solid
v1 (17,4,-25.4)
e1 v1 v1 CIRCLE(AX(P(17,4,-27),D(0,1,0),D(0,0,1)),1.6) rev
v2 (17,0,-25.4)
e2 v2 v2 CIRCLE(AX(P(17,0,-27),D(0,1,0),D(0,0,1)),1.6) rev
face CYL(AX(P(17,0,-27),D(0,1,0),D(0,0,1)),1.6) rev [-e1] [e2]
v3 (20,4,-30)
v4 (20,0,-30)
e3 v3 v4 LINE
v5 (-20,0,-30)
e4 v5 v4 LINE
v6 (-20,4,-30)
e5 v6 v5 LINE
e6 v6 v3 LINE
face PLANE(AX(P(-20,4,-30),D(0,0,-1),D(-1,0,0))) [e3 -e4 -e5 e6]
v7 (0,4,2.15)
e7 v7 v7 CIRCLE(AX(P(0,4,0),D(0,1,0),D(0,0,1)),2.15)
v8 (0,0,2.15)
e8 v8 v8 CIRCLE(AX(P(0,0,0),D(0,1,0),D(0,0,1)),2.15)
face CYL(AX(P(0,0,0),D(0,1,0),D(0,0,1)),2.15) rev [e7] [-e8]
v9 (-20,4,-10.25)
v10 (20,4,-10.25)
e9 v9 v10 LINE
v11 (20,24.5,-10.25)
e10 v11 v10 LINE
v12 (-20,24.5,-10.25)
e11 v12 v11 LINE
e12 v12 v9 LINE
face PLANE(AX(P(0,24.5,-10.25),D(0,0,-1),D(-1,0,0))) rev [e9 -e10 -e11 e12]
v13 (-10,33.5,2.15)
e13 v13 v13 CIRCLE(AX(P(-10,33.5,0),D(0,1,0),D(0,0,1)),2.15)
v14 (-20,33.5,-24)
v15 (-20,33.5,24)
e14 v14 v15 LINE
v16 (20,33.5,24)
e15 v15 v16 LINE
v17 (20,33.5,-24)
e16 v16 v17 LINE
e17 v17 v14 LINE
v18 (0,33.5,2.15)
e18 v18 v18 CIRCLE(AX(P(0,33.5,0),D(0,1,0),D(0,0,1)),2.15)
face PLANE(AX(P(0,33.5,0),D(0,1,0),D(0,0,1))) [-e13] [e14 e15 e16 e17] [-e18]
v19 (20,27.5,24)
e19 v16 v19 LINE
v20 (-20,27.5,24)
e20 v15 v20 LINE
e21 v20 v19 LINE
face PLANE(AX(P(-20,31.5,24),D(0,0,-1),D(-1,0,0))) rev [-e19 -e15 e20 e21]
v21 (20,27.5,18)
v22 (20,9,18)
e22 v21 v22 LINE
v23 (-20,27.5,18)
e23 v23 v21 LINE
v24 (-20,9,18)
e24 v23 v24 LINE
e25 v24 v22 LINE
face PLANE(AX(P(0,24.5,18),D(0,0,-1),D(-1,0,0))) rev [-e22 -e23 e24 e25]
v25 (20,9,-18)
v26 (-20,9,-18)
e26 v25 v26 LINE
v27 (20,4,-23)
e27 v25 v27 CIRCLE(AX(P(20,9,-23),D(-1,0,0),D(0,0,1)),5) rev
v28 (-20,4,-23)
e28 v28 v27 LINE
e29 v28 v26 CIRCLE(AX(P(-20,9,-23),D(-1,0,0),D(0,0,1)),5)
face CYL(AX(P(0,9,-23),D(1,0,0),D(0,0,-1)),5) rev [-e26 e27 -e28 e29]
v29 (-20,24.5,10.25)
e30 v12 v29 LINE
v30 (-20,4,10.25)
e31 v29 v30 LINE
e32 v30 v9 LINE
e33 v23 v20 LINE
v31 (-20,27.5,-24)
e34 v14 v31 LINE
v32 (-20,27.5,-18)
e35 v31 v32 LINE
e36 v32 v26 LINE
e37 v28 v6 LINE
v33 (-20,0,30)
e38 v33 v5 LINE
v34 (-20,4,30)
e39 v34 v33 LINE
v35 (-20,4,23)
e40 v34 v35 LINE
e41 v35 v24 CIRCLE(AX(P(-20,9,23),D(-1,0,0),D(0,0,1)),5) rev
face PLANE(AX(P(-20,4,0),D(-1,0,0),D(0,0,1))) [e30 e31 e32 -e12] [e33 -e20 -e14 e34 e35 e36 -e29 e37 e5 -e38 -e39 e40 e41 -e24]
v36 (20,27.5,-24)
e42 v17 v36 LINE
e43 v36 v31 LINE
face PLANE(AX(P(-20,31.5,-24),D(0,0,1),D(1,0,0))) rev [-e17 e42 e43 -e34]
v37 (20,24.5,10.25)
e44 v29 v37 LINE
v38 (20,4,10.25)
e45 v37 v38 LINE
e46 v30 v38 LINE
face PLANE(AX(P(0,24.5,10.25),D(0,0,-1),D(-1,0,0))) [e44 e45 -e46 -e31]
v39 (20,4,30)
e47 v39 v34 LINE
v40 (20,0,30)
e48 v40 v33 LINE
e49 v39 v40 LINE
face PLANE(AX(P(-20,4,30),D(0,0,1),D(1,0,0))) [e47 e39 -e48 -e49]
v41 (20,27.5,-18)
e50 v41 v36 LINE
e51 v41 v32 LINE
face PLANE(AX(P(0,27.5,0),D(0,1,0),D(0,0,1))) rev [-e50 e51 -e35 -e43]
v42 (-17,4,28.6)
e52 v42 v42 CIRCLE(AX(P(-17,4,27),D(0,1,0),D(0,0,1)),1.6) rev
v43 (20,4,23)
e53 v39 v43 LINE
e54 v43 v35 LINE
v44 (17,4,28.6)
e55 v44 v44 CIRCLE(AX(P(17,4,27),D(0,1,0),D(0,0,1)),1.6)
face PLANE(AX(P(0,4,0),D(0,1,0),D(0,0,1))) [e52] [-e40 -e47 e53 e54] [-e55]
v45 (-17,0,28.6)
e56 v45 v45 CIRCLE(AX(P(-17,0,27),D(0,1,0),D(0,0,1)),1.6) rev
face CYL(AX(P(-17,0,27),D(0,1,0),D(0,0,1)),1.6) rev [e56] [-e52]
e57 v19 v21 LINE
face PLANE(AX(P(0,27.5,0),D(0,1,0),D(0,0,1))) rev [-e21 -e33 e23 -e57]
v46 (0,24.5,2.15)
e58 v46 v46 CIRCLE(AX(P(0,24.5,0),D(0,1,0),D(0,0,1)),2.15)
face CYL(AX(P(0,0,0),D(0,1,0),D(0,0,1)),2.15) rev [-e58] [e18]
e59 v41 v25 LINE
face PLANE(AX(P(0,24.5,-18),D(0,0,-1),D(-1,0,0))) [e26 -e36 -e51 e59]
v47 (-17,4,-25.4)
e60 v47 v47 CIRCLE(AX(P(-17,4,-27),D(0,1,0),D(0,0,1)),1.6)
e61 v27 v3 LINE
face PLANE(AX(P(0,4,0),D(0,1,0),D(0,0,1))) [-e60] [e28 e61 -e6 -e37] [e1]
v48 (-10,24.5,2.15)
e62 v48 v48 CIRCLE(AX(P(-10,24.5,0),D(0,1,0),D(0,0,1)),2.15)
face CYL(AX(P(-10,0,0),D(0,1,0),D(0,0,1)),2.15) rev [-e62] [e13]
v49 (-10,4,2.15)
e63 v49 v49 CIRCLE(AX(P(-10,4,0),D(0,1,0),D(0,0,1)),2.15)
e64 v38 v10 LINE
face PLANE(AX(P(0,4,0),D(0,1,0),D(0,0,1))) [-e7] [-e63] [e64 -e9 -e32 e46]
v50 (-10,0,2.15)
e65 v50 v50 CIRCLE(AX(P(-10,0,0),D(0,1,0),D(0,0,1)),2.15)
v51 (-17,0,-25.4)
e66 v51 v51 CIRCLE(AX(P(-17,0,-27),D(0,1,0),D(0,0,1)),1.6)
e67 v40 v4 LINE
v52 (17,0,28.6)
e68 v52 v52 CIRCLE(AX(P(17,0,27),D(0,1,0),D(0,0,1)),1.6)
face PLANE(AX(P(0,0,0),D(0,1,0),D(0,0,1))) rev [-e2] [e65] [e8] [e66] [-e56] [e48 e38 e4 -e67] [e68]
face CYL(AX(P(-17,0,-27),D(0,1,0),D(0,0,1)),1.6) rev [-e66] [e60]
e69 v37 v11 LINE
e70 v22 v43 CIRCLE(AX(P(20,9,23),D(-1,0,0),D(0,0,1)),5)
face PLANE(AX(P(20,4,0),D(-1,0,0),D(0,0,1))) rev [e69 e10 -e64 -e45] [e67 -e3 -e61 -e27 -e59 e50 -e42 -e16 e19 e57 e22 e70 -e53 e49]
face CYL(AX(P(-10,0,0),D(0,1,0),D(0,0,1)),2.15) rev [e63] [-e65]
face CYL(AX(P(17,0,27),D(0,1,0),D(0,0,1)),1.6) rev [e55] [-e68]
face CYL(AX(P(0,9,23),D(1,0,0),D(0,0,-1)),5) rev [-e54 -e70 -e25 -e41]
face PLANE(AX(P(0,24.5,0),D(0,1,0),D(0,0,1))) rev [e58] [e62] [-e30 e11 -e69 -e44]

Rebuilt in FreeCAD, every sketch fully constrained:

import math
import FreeCAD as App
import Part
import Sketcher
from FreeCAD import Vector


def edges_at(feature, points):
    """Names of the edges that pass closest to the given points."""
    edges = feature.Shape.Edges
    near = lambda p: min(range(len(edges)), key=lambda i: edges[i].distToShape(Part.Vertex(*p))[0])
    return sorted({f"Edge{near(p) + 1}" for p in points})

doc = App.newDocument("Part")
body = doc.addObject("PartDesign::Body", "Body")

sketch1 = body.newObject("Sketcher::SketchObject", "Sketch")
sketch1.AttachmentSupport = (doc.getObject("XZ_Plane"), [""])
sketch1.MapMode = "FlatFace"
sketch1.addGeometry([
    Part.LineSegment(Vector(-20, -24, 0), Vector(-20, 24, 0)),
    Part.LineSegment(Vector(-20, 24, 0), Vector(20, 24, 0)),
    Part.LineSegment(Vector(20, 24, 0), Vector(20, -24, 0)),
    Part.LineSegment(Vector(20, -24, 0), Vector(-20, -24, 0)),
    Part.Circle(Vector(-11.45, 14, 0), Vector(0, 0, 1), 1.75),
    Part.Circle(Vector(11.45, 14, 0), Vector(0, 0, 1), 1.75),
    Part.Circle(Vector(-11.45, -14, 0), Vector(0, 0, 1), 1.75),
    Part.ArcOfCircle(Part.Circle(Vector(0, 15.5, 0), Vector(0, 0, 1), 2.45), math.radians(0), math.radians(180)),
    Part.LineSegment(Vector(-2.45, 15.5, 0), Vector(-2.45, -15.5, 0)),
    Part.ArcOfCircle(Part.Circle(Vector(0, -15.5, 0), Vector(0, 0, 1), 2.45), math.radians(180), math.radians(360)),
    Part.LineSegment(Vector(2.45, -15.5, 0), Vector(2.45, 15.5, 0)),
    Part.Circle(Vector(11.45, -14, 0), Vector(0, 0, 1), 1.75),
], False)
sketch1.addConstraint([
    Sketcher.Constraint("Coincident", 0, 2, 1, 1),
    Sketcher.Constraint("Coincident", 1, 2, 2, 1),
    Sketcher.Constraint("Coincident", 2, 2, 3, 1),
    Sketcher.Constraint("Coincident", 3, 2, 0, 1),
    Sketcher.Constraint("Tangent", 7, 2, 8, 1),
    Sketcher.Constraint("Tangent", 8, 2, 9, 1),
    Sketcher.Constraint("Tangent", 9, 2, 10, 1),
    Sketcher.Constraint("Tangent", 10, 2, 7, 1),
    Sketcher.Constraint("Vertical", 0),
    Sketcher.Constraint("Horizontal", 1),
    Sketcher.Constraint("Vertical", 2),
    Sketcher.Constraint("Horizontal", 3),
    Sketcher.Constraint("Vertical", 8),
    Sketcher.Constraint("Vertical", 10),
    Sketcher.Constraint("Equal", 4, 5),
    Sketcher.Constraint("Equal", 5, 6),
    Sketcher.Constraint("Equal", 6, 11),
    Sketcher.Constraint("Symmetric", 5, 3, 6, 3, -1, 1),
    Sketcher.Constraint("Symmetric", 7, 3, 9, 3, -1, 1),
    Sketcher.Constraint("Symmetric", 4, 3, 11, 3, -1, 1),
    Sketcher.Constraint("Symmetric", 0, 2, 2, 2, -1, 1),
    Sketcher.Constraint("Symmetric", 4, 3, 5, 3, -2),
    Sketcher.Constraint("Diameter", 4, 3.5),
    Sketcher.Constraint("DistanceX", 1, 1, 1, 2, 40.0),
    Sketcher.Constraint("DistanceY", 0, 1, 0, 2, 48.0),
    Sketcher.Constraint("DistanceY", 8, 2, 8, 1, 31.0),
    Sketcher.Constraint("Radius", 7, 2.45),
    Sketcher.Constraint("DistanceY", -1, 1, 4, 3, 14.0),
    Sketcher.Constraint("DistanceX", 4, 3, 7, 2, 9.0),
])
pad1 = body.newObject("PartDesign::Pad", "Pad")
pad1.Profile = sketch1
pad1.Length = 4
pad1.Reversed = True

sketch2 = body.newObject("Sketcher::SketchObject", "Sketch001")
sketch2.AttachmentSupport = (doc.getObject("XZ_Plane"), [""])
sketch2.MapMode = "FlatFace"
sketch2.AttachmentOffset = App.Placement(Vector(0, 0, -4), App.Rotation())
sketch2.addGeometry([
    Part.LineSegment(Vector(-20, 10.25, 0), Vector(-20, 18, 0)),
    Part.LineSegment(Vector(-20, 18, 0), Vector(20, 18, 0)),
    Part.LineSegment(Vector(20, 18, 0), Vector(20, 10.25, 0)),
    Part.LineSegment(Vector(20, 10.25, 0), Vector(-20, 10.25, 0)),
    Part.LineSegment(Vector(-20, -18, 0), Vector(-20, -10.25, 0)),
    Part.LineSegment(Vector(-20, -10.25, 0), Vector(20, -10.25, 0)),
    Part.LineSegment(Vector(20, -10.25, 0), Vector(20, -18, 0)),
    Part.LineSegment(Vector(20, -18, 0), Vector(-20, -18, 0)),
], False)
sketch2.addConstraint([
    Sketcher.Constraint("Coincident", 0, 2, 1, 1),
    Sketcher.Constraint("Coincident", 1, 2, 2, 1),
    Sketcher.Constraint("Coincident", 2, 2, 3, 1),
    Sketcher.Constraint("Coincident", 3, 2, 0, 1),
    Sketcher.Constraint("Coincident", 4, 2, 5, 1),
    Sketcher.Constraint("Coincident", 5, 2, 6, 1),
    Sketcher.Constraint("Coincident", 6, 2, 7, 1),
    Sketcher.Constraint("Coincident", 7, 2, 4, 1),
    Sketcher.Constraint("Vertical", 0),
    Sketcher.Constraint("Horizontal", 1),
    Sketcher.Constraint("Vertical", 2),
    Sketcher.Constraint("Horizontal", 3),
    Sketcher.Constraint("Vertical", 4),
    Sketcher.Constraint("Horizontal", 5),
    Sketcher.Constraint("Vertical", 6),
    Sketcher.Constraint("Horizontal", 7),
    Sketcher.Constraint("Symmetric", 2, 2, 4, 2, -1, 1),
    Sketcher.Constraint("Symmetric", 0, 2, 6, 2, -1, 1),
    Sketcher.Constraint("Vertical", 3, 2, 4, 2),
    Sketcher.Constraint("DistanceX", 1, 1, 1, 2, 40.0),
    Sketcher.Constraint("DistanceY", -1, 1, 0, 2, 18.0),
    Sketcher.Constraint("DistanceY", 0, 1, 0, 2, 7.75),
])
pad2 = body.newObject("PartDesign::Pad", "Pad001")
pad2.Profile = sketch2
pad2.Length = 20.5
pad2.Reversed = True

sketch3 = body.newObject("Sketcher::SketchObject", "Sketch002")
sketch3.AttachmentSupport = (doc.getObject("XZ_Plane"), [""])
sketch3.MapMode = "FlatFace"
sketch3.AttachmentOffset = App.Placement(Vector(0, 0, -24.5), App.Rotation())
sketch3.addGeometry([
    Part.LineSegment(Vector(-20, -18, 0), Vector(-20, 18, 0)),
    Part.LineSegment(Vector(-20, 18, 0), Vector(20, 18, 0)),
    Part.LineSegment(Vector(20, 18, 0), Vector(20, -18, 0)),
    Part.LineSegment(Vector(20, -18, 0), Vector(-20, -18, 0)),
], False)
sketch3.addConstraint([
    Sketcher.Constraint("Coincident", 0, 2, 1, 1),
    Sketcher.Constraint("Coincident", 1, 2, 2, 1),
    Sketcher.Constraint("Coincident", 2, 2, 3, 1),
    Sketcher.Constraint("Coincident", 3, 2, 0, 1),
    Sketcher.Constraint("Vertical", 0),
    Sketcher.Constraint("Horizontal", 1),
    Sketcher.Constraint("Vertical", 2),
    Sketcher.Constraint("Horizontal", 3),
    Sketcher.Constraint("Symmetric", 0, 2, 2, 2, -1, 1),
    Sketcher.Constraint("DistanceX", 1, 1, 1, 2, 40.0),
    Sketcher.Constraint("DistanceY", 0, 1, 0, 2, 36.0),
])
pad3 = body.newObject("PartDesign::Pad", "Pad002")
pad3.Profile = sketch3
pad3.Length = 3
pad3.Reversed = True
doc.recompute()

fillet = body.newObject("PartDesign::Fillet", "Fillet")
fillet.Base = (pad3, edges_at(pad3, [(0, 4, -18)]))
fillet.Radius = 5
doc.recompute()

fillet2 = body.newObject("PartDesign::Fillet", "Fillet001")
fillet2.Base = (fillet, edges_at(fillet, [(0, 4, 18)]))
fillet2.Radius = 5

sketch4 = body.newObject("Sketcher::SketchObject", "Sketch003")
sketch4.AttachmentSupport = (doc.getObject("XZ_Plane"), [""])
sketch4.MapMode = "FlatFace"
sketch4.AttachmentOffset = App.Placement(Vector(0, 0, -27.5), App.Rotation())
sketch4.addGeometry([
    Part.LineSegment(Vector(-20, -24, 0), Vector(-20, 24, 0)),
    Part.LineSegment(Vector(-20, 24, 0), Vector(20, 24, 0)),
    Part.LineSegment(Vector(20, 24, 0), Vector(20, -24, 0)),
    Part.LineSegment(Vector(20, -24, 0), Vector(-20, -24, 0)),
], False)
sketch4.addConstraint([
    Sketcher.Constraint("Coincident", 0, 2, 1, 1),
    Sketcher.Constraint("Coincident", 1, 2, 2, 1),
    Sketcher.Constraint("Coincident", 2, 2, 3, 1),
    Sketcher.Constraint("Coincident", 3, 2, 0, 1),
    Sketcher.Constraint("Vertical", 0),
    Sketcher.Constraint("Horizontal", 1),
    Sketcher.Constraint("Vertical", 2),
    Sketcher.Constraint("Horizontal", 3),
    Sketcher.Constraint("Symmetric", 0, 2, 2, 2, -1, 1),
    Sketcher.Constraint("DistanceX", 1, 1, 1, 2, 40.0),
    Sketcher.Constraint("DistanceY", 0, 1, 0, 2, 48.0),
])
pad4 = body.newObject("PartDesign::Pad", "Pad003")
pad4.Profile = sketch4
pad4.Length = 4
pad4.Reversed = True

sketch5 = body.newObject("Sketcher::SketchObject", "Sketch004")
sketch5.AttachmentSupport = (doc.getObject("XZ_Plane"), [""])
sketch5.MapMode = "FlatFace"
sketch5.addGeometry([
    Part.LineSegment(Vector(-20, 30, 0), Vector(-20, -30, 0)),
    Part.LineSegment(Vector(-20, -30, 0), Vector(20, -30, 0)),
    Part.LineSegment(Vector(20, -30, 0), Vector(20, 30, 0)),
    Part.LineSegment(Vector(20, 30, 0), Vector(-20, 30, 0)),
], False)
sketch5.addConstraint([
    Sketcher.Constraint("Coincident", 0, 2, 1, 1),
    Sketcher.Constraint("Coincident", 1, 2, 2, 1),
    Sketcher.Constraint("Coincident", 2, 2, 3, 1),
    Sketcher.Constraint("Coincident", 3, 2, 0, 1),
    Sketcher.Constraint("Vertical", 0),
    Sketcher.Constraint("Horizontal", 1),
    Sketcher.Constraint("Vertical", 2),
    Sketcher.Constraint("Horizontal", 3),
    Sketcher.Constraint("Symmetric", 0, 2, 2, 2, -1, 1),
    Sketcher.Constraint("DistanceX", 1, 1, 1, 2, 40.0),
    Sketcher.Constraint("DistanceY", 0, 2, 0, 1, 60.0),
])
pad5 = body.newObject("PartDesign::Pad", "Pad004")
pad5.Profile = sketch5
pad5.Length = 4
pad5.Reversed = True

sketch6 = body.newObject("Sketcher::SketchObject", "Sketch005")
sketch6.AttachmentSupport = (doc.getObject("XZ_Plane"), [""])
sketch6.MapMode = "FlatFace"
sketch6.AttachmentOffset = App.Placement(Vector(0, 0, -4), App.Rotation())
sketch6.addGeometry([
    Part.Circle(Vector(17, -27, 0), Vector(0, 0, 1), 1.6),
    Part.Circle(Vector(-17, 27, 0), Vector(0, 0, 1), 1.6),
    Part.Circle(Vector(17, 27, 0), Vector(0, 0, 1), 1.6),
    Part.Circle(Vector(-17, -27, 0), Vector(0, 0, 1), 1.6),
], False)
sketch6.addConstraint([
    Sketcher.Constraint("Equal", 0, 1),
    Sketcher.Constraint("Equal", 1, 2),
    Sketcher.Constraint("Equal", 2, 3),
    Sketcher.Constraint("Symmetric", 0, 3, 1, 3, -1, 1),
    Sketcher.Constraint("Symmetric", 2, 3, 3, 3, -1, 1),
    Sketcher.Constraint("Symmetric", 1, 3, 2, 3, -2),
    Sketcher.Constraint("Diameter", 0, 3.2),
    Sketcher.Constraint("DistanceX", -1, 1, 0, 3, 17.0),
    Sketcher.Constraint("DistanceY", 0, 3, -1, 1, 27.0),
])
pocket1 = body.newObject("PartDesign::Pocket", "Pocket")
pocket1.Profile = sketch6
pocket1.Type = "ThroughAll"
pocket1.Reversed = True

sketch7 = body.newObject("Sketcher::SketchObject", "Sketch006")
sketch7.AttachmentSupport = (doc.getObject("XZ_Plane"), [""])
sketch7.MapMode = "FlatFace"
sketch7.AttachmentOffset = App.Placement(Vector(0, 0, -31.5), App.Rotation())
sketch7.addGeometry([
    Part.LineSegment(Vector(-20, -24, 0), Vector(-20, 24, 0)),
    Part.LineSegment(Vector(-20, 24, 0), Vector(20, 24, 0)),
    Part.LineSegment(Vector(20, 24, 0), Vector(20, -24, 0)),
    Part.LineSegment(Vector(20, -24, 0), Vector(-20, -24, 0)),
], False)
sketch7.addConstraint([
    Sketcher.Constraint("Coincident", 0, 2, 1, 1),
    Sketcher.Constraint("Coincident", 1, 2, 2, 1),
    Sketcher.Constraint("Coincident", 2, 2, 3, 1),
    Sketcher.Constraint("Coincident", 3, 2, 0, 1),
    Sketcher.Constraint("Vertical", 0),
    Sketcher.Constraint("Horizontal", 1),
    Sketcher.Constraint("Vertical", 2),
    Sketcher.Constraint("Horizontal", 3),
    Sketcher.Constraint("Symmetric", 0, 2, 2, 2, -1, 1),
    Sketcher.Constraint("DistanceX", 1, 1, 1, 2, 40.0),
    Sketcher.Constraint("DistanceY", 0, 1, 0, 2, 48.0),
])
pad6 = body.newObject("PartDesign::Pad", "Pad005")
pad6.Profile = sketch7
pad6.Length = 2
pad6.Reversed = True

sketch8 = body.newObject("Sketcher::SketchObject", "Sketch007")
sketch8.AttachmentSupport = (doc.getObject("XZ_Plane"), [""])
sketch8.MapMode = "FlatFace"
sketch8.AttachmentOffset = App.Placement(Vector(0, 0, -33.5), App.Rotation())
sketch8.addGeometry([
    Part.Circle(Vector(-10, 0, 0), Vector(0, 0, 1), 2.15),
    Part.Circle(Vector(0, 0, 0), Vector(0, 0, 1), 2.15),
], False)
sketch8.addConstraint([
    Sketcher.Constraint("Coincident", 1, 3, -1, 1),
    Sketcher.Constraint("Equal", 0, 1),
    Sketcher.Constraint("PointOnObject", 0, 3, -1),
    Sketcher.Constraint("Diameter", 0, 4.3),
    Sketcher.Constraint("DistanceX", 0, 3, -1, 1, 10.0),
])
pocket2 = body.newObject("PartDesign::Pocket", "Pocket001")
pocket2.Profile = sketch8
pocket2.Type = "ThroughAll"
pocket2.Reversed = True

doc.recompute()
